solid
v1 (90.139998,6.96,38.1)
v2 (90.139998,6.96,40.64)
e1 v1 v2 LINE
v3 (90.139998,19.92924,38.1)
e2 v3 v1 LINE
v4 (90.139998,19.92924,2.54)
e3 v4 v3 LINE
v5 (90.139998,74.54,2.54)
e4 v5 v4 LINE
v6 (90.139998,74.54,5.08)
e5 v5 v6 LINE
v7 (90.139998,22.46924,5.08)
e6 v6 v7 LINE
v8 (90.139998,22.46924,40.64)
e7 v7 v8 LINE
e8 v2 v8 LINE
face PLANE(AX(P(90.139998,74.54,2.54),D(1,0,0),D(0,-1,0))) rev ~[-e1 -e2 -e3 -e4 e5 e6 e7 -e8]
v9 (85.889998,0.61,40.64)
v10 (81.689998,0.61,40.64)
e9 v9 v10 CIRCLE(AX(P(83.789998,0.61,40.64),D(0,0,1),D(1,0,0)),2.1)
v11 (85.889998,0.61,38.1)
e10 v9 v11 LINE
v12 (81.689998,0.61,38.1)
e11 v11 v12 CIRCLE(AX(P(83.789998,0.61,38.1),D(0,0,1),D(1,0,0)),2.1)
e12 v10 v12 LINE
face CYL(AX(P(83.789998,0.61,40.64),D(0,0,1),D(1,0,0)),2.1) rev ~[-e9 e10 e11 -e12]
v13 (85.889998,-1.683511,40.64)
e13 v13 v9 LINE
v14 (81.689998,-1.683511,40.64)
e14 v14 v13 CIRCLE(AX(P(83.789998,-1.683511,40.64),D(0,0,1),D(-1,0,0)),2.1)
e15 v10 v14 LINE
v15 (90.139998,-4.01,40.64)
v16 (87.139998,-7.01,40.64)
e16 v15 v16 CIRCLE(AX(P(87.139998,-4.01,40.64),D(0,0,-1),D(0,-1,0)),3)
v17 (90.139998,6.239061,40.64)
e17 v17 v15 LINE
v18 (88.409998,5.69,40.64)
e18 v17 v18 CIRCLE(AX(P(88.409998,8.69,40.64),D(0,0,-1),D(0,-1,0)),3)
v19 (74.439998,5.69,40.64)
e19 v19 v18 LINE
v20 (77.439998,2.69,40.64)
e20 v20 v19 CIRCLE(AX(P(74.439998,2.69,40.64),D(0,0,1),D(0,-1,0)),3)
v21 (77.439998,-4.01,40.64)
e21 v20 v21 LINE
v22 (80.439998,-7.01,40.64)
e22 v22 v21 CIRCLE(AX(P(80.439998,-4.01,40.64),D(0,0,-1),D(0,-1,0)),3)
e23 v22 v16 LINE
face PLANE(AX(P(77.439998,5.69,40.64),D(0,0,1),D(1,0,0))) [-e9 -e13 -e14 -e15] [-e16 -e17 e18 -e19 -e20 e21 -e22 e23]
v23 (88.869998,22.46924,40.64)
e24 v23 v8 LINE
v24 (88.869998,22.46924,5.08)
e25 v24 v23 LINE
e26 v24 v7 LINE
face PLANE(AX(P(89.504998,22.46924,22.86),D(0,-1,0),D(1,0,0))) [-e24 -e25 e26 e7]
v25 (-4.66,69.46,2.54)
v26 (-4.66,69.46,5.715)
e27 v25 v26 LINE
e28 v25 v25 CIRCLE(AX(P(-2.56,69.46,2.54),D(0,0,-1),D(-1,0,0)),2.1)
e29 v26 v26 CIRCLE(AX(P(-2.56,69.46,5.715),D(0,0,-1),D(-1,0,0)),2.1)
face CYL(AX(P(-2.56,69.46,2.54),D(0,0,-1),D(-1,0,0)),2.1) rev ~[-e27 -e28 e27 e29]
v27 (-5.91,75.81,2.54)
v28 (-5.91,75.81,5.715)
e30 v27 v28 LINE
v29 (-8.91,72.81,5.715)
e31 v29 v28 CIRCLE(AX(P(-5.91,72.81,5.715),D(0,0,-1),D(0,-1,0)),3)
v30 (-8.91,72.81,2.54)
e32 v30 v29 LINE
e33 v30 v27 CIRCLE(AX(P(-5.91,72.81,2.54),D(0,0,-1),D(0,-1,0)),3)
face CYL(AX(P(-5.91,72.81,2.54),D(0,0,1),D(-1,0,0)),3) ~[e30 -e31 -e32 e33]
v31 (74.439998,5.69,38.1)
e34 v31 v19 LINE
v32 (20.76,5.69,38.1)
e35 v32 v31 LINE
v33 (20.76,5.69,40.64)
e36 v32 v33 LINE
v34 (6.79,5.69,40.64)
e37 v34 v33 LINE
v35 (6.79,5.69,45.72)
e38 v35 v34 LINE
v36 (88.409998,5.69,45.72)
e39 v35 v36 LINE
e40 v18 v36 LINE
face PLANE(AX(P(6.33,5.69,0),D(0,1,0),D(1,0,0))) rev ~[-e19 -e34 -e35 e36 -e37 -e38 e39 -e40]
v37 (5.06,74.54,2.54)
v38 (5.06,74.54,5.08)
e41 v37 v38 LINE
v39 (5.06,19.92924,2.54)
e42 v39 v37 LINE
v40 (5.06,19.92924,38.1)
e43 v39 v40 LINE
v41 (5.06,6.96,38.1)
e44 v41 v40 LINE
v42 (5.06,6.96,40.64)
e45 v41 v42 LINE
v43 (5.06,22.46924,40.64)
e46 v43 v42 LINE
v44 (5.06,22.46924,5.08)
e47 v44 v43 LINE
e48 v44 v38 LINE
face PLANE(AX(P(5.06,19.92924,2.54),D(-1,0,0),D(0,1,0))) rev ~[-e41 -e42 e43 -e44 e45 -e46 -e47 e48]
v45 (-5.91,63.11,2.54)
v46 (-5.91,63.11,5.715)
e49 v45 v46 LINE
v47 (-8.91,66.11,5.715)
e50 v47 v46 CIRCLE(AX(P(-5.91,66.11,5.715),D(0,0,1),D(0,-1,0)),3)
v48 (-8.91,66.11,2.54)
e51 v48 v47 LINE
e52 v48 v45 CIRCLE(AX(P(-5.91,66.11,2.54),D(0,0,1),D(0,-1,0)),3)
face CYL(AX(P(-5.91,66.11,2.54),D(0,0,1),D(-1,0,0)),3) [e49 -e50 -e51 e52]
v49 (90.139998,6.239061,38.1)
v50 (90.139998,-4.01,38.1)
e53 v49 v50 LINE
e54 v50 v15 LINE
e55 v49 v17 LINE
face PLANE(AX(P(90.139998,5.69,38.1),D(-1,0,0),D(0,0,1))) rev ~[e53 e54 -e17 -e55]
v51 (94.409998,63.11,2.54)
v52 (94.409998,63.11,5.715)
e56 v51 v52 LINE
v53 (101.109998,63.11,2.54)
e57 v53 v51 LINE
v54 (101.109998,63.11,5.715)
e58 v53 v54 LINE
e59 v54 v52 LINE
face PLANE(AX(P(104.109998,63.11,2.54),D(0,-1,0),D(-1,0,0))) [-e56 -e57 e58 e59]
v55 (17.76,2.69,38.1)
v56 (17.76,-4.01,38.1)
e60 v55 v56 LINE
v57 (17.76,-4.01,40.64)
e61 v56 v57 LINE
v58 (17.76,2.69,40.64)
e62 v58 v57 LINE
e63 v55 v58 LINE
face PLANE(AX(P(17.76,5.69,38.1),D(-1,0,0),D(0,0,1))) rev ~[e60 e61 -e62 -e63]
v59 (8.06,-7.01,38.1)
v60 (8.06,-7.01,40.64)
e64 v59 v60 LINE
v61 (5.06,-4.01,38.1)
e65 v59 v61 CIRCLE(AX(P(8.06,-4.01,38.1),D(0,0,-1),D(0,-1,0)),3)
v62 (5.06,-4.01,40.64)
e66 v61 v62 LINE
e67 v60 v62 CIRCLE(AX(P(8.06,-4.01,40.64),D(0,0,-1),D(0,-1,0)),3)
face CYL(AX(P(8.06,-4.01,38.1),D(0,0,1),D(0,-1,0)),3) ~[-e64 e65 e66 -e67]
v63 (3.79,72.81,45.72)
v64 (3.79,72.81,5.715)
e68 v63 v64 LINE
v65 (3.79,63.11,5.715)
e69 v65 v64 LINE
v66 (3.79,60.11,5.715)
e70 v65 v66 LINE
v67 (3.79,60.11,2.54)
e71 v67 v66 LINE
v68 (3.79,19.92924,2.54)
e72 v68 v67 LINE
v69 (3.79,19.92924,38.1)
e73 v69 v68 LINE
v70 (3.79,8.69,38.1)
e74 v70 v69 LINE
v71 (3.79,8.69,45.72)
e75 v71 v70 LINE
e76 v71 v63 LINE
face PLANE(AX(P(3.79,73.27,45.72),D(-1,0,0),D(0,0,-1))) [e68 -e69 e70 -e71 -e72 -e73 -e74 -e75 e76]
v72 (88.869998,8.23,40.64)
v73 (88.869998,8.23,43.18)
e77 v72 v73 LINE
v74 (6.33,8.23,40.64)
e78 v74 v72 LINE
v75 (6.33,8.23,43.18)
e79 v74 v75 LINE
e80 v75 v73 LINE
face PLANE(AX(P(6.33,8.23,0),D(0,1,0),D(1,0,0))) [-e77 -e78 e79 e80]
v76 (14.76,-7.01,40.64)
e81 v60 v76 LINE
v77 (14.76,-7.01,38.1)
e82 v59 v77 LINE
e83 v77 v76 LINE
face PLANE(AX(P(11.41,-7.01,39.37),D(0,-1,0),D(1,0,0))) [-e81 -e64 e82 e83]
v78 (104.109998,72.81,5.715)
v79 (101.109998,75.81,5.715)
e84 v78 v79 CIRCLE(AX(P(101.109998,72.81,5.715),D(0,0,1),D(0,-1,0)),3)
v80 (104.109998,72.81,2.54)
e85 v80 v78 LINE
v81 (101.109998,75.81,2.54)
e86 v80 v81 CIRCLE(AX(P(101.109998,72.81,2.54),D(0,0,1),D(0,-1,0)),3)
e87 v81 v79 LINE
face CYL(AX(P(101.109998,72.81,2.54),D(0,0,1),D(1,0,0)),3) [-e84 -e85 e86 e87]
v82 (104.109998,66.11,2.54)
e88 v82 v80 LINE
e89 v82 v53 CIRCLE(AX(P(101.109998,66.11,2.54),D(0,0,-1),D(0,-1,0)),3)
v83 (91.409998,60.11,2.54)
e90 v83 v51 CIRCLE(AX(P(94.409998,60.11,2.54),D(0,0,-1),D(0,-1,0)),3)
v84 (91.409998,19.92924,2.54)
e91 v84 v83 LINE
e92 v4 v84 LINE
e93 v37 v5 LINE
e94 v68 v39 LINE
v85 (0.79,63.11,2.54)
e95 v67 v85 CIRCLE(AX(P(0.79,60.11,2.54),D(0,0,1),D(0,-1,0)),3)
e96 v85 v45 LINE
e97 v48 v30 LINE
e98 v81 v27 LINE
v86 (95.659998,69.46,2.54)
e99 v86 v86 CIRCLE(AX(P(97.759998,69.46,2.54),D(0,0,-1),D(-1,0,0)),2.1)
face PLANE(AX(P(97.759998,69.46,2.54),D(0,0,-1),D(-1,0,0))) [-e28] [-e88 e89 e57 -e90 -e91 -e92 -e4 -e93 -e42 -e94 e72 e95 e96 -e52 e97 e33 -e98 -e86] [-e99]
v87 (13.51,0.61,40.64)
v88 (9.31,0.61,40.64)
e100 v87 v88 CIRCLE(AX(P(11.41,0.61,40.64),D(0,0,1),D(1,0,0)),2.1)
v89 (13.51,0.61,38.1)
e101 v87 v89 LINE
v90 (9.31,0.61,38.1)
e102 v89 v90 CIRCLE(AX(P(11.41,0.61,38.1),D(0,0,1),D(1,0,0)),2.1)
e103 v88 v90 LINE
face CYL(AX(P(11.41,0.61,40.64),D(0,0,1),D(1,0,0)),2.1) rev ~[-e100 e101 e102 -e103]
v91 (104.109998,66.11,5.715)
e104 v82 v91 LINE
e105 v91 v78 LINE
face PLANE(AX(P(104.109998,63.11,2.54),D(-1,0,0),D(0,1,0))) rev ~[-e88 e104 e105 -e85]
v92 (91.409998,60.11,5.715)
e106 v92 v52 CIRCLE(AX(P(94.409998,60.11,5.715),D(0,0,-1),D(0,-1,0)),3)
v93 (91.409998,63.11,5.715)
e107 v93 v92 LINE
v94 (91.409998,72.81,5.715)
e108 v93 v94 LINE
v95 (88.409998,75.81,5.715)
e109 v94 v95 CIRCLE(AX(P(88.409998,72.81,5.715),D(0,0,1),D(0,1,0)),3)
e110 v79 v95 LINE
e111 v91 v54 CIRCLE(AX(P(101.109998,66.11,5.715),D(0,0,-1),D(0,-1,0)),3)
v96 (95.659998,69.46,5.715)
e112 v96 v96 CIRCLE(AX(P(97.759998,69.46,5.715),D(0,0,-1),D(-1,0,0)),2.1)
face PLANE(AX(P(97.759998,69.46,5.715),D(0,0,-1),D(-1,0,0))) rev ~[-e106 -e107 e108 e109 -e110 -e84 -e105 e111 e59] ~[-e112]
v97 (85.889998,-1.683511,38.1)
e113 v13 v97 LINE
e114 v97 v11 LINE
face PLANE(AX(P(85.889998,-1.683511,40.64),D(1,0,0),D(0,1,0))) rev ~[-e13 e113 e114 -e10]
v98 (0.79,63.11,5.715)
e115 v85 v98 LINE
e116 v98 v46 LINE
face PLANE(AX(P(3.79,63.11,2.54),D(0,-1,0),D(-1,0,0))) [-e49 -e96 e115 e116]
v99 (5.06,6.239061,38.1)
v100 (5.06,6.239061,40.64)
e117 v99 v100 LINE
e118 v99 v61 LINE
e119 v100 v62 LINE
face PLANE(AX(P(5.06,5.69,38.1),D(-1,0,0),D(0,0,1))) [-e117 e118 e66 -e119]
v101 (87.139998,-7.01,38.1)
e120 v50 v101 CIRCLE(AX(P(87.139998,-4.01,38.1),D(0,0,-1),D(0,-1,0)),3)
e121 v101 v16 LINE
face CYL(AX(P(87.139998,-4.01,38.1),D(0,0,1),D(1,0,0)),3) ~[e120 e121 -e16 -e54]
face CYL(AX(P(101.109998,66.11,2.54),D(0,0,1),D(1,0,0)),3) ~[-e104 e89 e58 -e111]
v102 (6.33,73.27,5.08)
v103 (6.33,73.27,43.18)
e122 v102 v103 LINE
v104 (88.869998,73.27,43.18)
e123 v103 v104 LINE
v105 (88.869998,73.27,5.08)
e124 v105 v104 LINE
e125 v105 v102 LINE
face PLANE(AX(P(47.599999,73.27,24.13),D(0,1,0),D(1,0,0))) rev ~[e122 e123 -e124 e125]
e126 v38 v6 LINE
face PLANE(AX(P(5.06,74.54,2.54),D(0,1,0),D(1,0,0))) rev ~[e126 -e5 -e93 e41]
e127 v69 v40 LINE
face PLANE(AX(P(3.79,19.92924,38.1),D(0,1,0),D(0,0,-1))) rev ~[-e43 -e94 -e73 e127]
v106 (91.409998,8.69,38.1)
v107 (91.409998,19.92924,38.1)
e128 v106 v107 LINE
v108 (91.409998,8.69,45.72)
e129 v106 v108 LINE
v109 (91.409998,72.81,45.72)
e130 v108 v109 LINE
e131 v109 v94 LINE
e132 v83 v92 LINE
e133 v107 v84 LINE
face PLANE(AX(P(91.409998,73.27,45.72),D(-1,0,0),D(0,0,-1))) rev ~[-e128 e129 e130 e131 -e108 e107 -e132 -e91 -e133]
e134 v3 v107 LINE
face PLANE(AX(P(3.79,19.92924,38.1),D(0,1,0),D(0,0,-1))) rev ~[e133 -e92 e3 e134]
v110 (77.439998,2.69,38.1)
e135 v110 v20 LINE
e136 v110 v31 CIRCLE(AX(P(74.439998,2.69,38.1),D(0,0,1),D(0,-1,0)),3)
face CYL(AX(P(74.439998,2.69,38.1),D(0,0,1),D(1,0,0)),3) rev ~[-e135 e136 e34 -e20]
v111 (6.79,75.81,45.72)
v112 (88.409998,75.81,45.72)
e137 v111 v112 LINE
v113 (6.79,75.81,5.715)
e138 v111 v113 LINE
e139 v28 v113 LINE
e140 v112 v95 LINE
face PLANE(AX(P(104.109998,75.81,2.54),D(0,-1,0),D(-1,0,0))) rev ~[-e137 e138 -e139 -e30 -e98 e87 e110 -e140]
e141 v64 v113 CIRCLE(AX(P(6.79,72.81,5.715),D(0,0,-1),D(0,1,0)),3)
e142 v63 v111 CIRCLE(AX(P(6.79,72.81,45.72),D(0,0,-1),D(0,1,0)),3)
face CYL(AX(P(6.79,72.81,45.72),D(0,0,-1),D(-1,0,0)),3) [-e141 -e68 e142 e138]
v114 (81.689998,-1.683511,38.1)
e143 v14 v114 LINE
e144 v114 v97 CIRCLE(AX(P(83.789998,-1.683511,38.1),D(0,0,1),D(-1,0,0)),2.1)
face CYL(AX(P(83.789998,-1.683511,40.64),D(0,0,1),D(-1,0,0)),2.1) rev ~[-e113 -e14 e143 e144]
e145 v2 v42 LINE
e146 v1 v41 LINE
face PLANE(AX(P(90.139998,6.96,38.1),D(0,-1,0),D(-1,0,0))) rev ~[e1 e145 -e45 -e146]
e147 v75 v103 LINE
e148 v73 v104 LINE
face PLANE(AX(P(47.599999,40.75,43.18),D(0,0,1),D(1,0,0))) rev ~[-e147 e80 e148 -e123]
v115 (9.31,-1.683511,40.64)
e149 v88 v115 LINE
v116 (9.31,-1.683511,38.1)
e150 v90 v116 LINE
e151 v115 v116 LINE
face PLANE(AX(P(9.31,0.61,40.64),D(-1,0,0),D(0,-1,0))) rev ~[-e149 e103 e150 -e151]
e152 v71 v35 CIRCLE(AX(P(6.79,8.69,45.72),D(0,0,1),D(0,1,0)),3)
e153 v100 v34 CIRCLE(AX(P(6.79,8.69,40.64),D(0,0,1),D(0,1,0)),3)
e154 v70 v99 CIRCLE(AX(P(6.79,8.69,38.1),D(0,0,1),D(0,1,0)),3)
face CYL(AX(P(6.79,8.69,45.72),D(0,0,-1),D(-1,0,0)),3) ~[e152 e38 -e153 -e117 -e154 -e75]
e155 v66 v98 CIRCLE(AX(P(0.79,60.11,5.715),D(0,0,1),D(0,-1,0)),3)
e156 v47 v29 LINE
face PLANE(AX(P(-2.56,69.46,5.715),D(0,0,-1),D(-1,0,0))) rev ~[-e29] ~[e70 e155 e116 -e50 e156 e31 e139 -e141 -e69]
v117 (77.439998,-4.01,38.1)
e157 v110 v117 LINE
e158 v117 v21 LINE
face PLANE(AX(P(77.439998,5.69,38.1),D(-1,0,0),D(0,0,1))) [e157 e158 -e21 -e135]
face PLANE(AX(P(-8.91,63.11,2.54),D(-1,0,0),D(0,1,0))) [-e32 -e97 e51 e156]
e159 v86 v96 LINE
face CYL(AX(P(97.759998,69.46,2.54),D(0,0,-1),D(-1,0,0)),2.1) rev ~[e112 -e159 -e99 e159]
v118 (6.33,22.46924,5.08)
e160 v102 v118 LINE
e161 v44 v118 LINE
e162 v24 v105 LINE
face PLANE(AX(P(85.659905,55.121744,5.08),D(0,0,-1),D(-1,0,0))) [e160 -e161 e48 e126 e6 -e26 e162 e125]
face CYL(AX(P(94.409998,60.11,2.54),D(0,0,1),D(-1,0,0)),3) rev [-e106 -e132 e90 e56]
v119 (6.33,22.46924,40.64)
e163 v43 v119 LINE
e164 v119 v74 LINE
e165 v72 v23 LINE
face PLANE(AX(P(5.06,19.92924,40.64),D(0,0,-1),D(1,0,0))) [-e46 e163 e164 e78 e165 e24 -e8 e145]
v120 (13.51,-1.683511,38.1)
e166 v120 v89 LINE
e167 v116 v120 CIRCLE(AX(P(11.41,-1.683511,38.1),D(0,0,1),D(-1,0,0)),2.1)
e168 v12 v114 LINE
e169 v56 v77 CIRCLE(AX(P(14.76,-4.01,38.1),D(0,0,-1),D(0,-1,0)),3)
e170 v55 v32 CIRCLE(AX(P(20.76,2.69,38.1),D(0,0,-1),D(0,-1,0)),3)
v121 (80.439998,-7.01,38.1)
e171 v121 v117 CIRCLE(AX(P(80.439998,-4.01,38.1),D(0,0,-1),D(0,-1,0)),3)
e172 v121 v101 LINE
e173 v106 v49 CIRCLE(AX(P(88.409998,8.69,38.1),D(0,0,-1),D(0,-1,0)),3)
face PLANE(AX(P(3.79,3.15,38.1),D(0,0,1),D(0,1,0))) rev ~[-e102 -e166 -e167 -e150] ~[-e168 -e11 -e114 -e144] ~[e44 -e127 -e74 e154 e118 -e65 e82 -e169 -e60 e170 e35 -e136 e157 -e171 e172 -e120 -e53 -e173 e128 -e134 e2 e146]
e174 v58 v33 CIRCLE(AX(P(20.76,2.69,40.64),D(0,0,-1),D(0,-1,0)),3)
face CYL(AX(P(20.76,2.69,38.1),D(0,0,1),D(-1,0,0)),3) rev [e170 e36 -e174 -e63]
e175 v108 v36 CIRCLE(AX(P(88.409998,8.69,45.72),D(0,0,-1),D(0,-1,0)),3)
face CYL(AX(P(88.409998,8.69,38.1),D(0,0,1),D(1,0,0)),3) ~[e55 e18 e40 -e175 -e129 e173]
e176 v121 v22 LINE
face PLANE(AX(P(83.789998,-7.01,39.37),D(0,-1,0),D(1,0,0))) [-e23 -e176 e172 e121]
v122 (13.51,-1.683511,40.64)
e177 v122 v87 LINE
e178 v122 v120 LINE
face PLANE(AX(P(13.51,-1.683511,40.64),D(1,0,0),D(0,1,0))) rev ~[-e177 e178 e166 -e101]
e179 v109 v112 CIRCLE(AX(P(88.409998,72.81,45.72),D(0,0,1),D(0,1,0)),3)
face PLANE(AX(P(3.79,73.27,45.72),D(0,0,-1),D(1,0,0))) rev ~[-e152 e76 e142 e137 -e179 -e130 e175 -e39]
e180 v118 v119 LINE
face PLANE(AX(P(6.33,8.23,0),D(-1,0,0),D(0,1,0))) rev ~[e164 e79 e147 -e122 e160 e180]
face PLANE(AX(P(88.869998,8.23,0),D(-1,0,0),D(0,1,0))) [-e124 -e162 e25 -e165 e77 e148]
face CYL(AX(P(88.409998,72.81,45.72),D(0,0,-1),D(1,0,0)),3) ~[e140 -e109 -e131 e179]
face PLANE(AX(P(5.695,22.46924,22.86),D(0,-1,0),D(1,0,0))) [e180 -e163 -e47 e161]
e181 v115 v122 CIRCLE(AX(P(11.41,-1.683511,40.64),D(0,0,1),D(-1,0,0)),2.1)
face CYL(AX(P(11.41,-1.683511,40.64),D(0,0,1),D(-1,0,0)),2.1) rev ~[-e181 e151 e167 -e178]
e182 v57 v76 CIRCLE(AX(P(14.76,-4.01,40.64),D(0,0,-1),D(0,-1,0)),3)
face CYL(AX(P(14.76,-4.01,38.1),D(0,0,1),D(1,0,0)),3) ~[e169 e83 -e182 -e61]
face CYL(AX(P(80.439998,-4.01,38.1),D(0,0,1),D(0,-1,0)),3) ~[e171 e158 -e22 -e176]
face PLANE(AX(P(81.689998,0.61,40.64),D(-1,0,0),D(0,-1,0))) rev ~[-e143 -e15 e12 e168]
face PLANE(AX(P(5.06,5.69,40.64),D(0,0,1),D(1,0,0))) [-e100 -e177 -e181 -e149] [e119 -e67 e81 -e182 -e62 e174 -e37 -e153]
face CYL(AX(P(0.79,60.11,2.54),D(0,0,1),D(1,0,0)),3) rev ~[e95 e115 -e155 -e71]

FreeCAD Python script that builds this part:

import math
import FreeCAD as App
import Part
import Sketcher
from FreeCAD import Vector
Q = App.Units.Quantity


def edges_at(feature, points):
    """Names of the edges that pass closest to the given points."""
    edges = feature.Shape.Edges
    near = lambda p: min(range(len(edges)), key=lambda i: edges[i].distToShape(Part.Vertex(*p))[0])
    return sorted({f"Edge{near(p) + 1}" for p in points})


def faces_at(feature, points):
    """Names of the faces that lie closest to the given points."""
    faces = feature.Shape.Faces
    near = lambda p: min(range(len(faces)), key=lambda i: faces[i].distToShape(Part.Vertex(*p))[0])
    return sorted({f"Face{near(p) + 1}" for p in points})

doc = App.newDocument("Part")
body = doc.addObject("PartDesign::Body", "Body")

# Sketch on XY plane
sketch1 = body.newObject("Sketcher::SketchObject", "Sketch")
sketch1.AttachmentSupport = (doc.getObject("XY_Plane"), [""])
sketch1.MapMode = "FlatFace"
sketch1.addGeometry(Part.LineSegment(Vector(6.33, 73.27, 0), Vector(6.33, 8.23, 0)), False)
sketch1.addGeometry(Part.LineSegment(Vector(6.33, 8.23, 0), Vector(88.869998, 8.23, 0)), False)
sketch1.addGeometry(Part.LineSegment(Vector(88.869998, 8.23, 0), Vector(88.869998, 73.27, 0)), False)
sketch1.addGeometry(Part.LineSegment(Vector(88.869998, 73.27, 0), Vector(6.33, 73.27, 0)), False)
sketch1.addConstraint(Sketcher.Constraint("Coincident", 0, 2, 1, 1))
sketch1.addConstraint(Sketcher.Constraint("Coincident", 1, 2, 2, 1))
sketch1.addConstraint(Sketcher.Constraint("Coincident", 2, 2, 3, 1))
sketch1.addConstraint(Sketcher.Constraint("Coincident", 3, 2, 0, 1))
sketch1.addConstraint(Sketcher.Constraint("Vertical", 0))
sketch1.addConstraint(Sketcher.Constraint("Horizontal", 1))
sketch1.addConstraint(Sketcher.Constraint("Vertical", 2))
sketch1.addConstraint(Sketcher.Constraint("Horizontal", 3))
sketch1.addConstraint(Sketcher.Constraint("DistanceX", 1, 1, 1, 2, 82.539999))
sketch1.addConstraint(Sketcher.Constraint("DistanceY", 0, 2, 0, 1, 65.04))
sketch1.addConstraint(Sketcher.Constraint("DistanceX", -1, 1, 0, 2, 6.33))
sketch1.addConstraint(Sketcher.Constraint("DistanceY", -1, 1, 0, 2, 8.23))
pad1 = body.newObject("PartDesign::Pad", "Pad")
pad1.Profile = sketch1
pad1.Length = Q("1.7 in")
doc.recompute()

thickness = body.newObject("PartDesign::Thickness", "Thickness")
thickness.Base = (pad1, faces_at(pad1, [(47.6, 73.27, 21.59), (47.6, 40.75, 0)]))
thickness.Value = Q("0.1 in")
thickness.Reversed = False
thickness.Join = "Intersection"

# Sketch on YZ plane
sketch2 = body.newObject("Sketcher::SketchObject", "Sketch001")
sketch2.AttachmentSupport = (doc.getObject("YZ_Plane"), [""])
sketch2.MapMode = "FlatFace"
sketch2.AttachmentOffset = App.Placement(Vector(0, 0, 3.79), App.Rotation())
sketch2.addGeometry(Part.LineSegment(Vector(73.27, 2.54, 0), Vector(73.27, 0, 0)), False)
sketch2.addGeometry(Part.LineSegment(Vector(73.27, 0, 0), Vector(3.15, 0, 0)), False)
sketch2.addGeometry(Part.LineSegment(Vector(3.15, 0, 0), Vector(3.15, 38.1, 0)), False)
sketch2.addGeometry(Part.LineSegment(Vector(3.15, 38.1, 0), Vector(19.92924, 38.1, 0)), False)
sketch2.addGeometry(Part.LineSegment(Vector(19.92924, 38.1, 0), Vector(19.92924, 2.54, 0)), False)
sketch2.addGeometry(Part.LineSegment(Vector(19.92924, 2.54, 0), Vector(73.27, 2.54, 0)), False)
sketch2.addConstraint(Sketcher.Constraint("Coincident", 0, 2, 1, 1))
sketch2.addConstraint(Sketcher.Constraint("Coincident", 1, 2, 2, 1))
sketch2.addConstraint(Sketcher.Constraint("Coincident", 2, 2, 3, 1))
sketch2.addConstraint(Sketcher.Constraint("Coincident", 3, 2, 4, 1))
sketch2.addConstraint(Sketcher.Constraint("Coincident", 4, 2, 5, 1))
sketch2.addConstraint(Sketcher.Constraint("Coincident", 5, 2, 0, 1))
sketch2.addConstraint(Sketcher.Constraint("Vertical", 0))
sketch2.addConstraint(Sketcher.Constraint("Horizontal", 1))
sketch2.addConstraint(Sketcher.Constraint("Vertical", 2))
sketch2.addConstraint(Sketcher.Constraint("Horizontal", 3))
sketch2.addConstraint(Sketcher.Constraint("Vertical", 4))
sketch2.addConstraint(Sketcher.Constraint("Horizontal", 5))
sketch2.addConstraint(Sketcher.Constraint("PointOnObject", 0, 2, -1))
sketch2.addConstraint(Sketcher.Constraint("DistanceY", 0, 2, 0, 1, Q("0.1 in")))
sketch2.addConstraint(Sketcher.Constraint("DistanceY", 2, 1, 2, 2, Q("1.5 in")))
sketch2.addConstraint(Sketcher.Constraint("DistanceX", 3, 1, 3, 2, Q("0.6606 in")))
sketch2.addConstraint(Sketcher.Constraint("DistanceX", 1, 2, 1, 1, 70.12))
sketch2.addConstraint(Sketcher.Constraint("DistanceX", -1, 1, 0, 2, 73.27))
pocket1 = body.newObject("PartDesign::Pocket", "Pocket")
pocket1.Profile = sketch2
pocket1.Type = "ThroughAll"
pocket1.Reversed = True

# Sketch on XZ plane
sketch3 = body.newObject("Sketcher::SketchObject", "Sketch002")
sketch3.AttachmentSupport = (doc.getObject("XZ_Plane"), [""])
sketch3.MapMode = "FlatFace"
sketch3.AttachmentOffset = App.Placement(Vector(0, 0, -73.27), App.Rotation())
sketch3.addGeometry(Part.LineSegment(Vector(3.79, 2.54, 0), Vector(3.79, 45.72, 0)), False)
sketch3.addGeometry(Part.LineSegment(Vector(3.79, 45.72, 0), Vector(91.409998, 45.72, 0)), False)
sketch3.addGeometry(Part.LineSegment(Vector(91.409998, 45.72, 0), Vector(91.409998, 2.54, 0)), False)
sketch3.addGeometry(Part.LineSegment(Vector(91.409998, 2.54, 0), Vector(3.79, 2.54, 0)), False)
sketch3.addConstraint(Sketcher.Constraint("Coincident", 0, 2, 1, 1))
sketch3.addConstraint(Sketcher.Constraint("Coincident", 1, 2, 2, 1))
sketch3.addConstraint(Sketcher.Constraint("Coincident", 2, 2, 3, 1))
sketch3.addConstraint(Sketcher.Constraint("Coincident", 3, 2, 0, 1))
sketch3.addConstraint(Sketcher.Constraint("Vertical", 0))
sketch3.addConstraint(Sketcher.Constraint("Horizontal", 1))
sketch3.addConstraint(Sketcher.Constraint("Vertical", 2))
sketch3.addConstraint(Sketcher.Constraint("Horizontal", 3))
sketch3.addConstraint(Sketcher.Constraint("DistanceY", 0, 1, 0, 2, Q("1.7 in")))
sketch3.addConstraint(Sketcher.Constraint("DistanceY", -1, 1, 0, 2, Q("1.8 in")))
sketch3.addConstraint(Sketcher.Constraint("DistanceX", 1, 1, 1, 2, 87.619999))
sketch3.addConstraint(Sketcher.Constraint("DistanceX", -1, 1, 0, 2, 3.79))
pad2 = body.newObject("PartDesign::Pad", "Pad001")
pad2.Profile = sketch3
pad2.Length = Q("0.1 in")
pad2.Reversed = True

# Sketch on XY plane
sketch4 = body.newObject("Sketcher::SketchObject", "Sketch003")
sketch4.AttachmentSupport = (doc.getObject("XY_Plane"), [""])
sketch4.MapMode = "FlatFace"
sketch4.AttachmentOffset = App.Placement(Vector(0, 0, 0.1 * 25.4), App.Rotation())
sketch4.addGeometry(Part.LineSegment(Vector(90.139998, 74.54, 0), Vector(90.139998, 19.92924, 0)), False)
sketch4.addGeometry(Part.LineSegment(Vector(90.139998, 19.92924, 0), Vector(88.869998, 19.92924, 0)), False)
sketch4.addGeometry(Part.LineSegment(Vector(88.869998, 19.92924, 0), Vector(88.869998, 73.27, 0)), False)
sketch4.addGeometry(Part.LineSegment(Vector(88.869998, 73.27, 0), Vector(6.33, 73.27, 0)), False)
sketch4.addGeometry(Part.LineSegment(Vector(6.33, 73.27, 0), Vector(6.33, 19.92924, 0)), False)
sketch4.addGeometry(Part.LineSegment(Vector(6.33, 19.92924, 0), Vector(5.06, 19.92924, 0)), False)
sketch4.addGeometry(Part.LineSegment(Vector(5.06, 19.92924, 0), Vector(5.06, 74.54, 0)), False)
sketch4.addGeometry(Part.LineSegment(Vector(5.06, 74.54, 0), Vector(90.139998, 74.54, 0)), False)
sketch4.addConstraint(Sketcher.Constraint("Coincident", 0, 2, 1, 1))
sketch4.addConstraint(Sketcher.Constraint("Coincident", 1, 2, 2, 1))
sketch4.addConstraint(Sketcher.Constraint("Coincident", 2, 2, 3, 1))
sketch4.addConstraint(Sketcher.Constraint("Coincident", 3, 2, 4, 1))
sketch4.addConstraint(Sketcher.Constraint("Coincident", 4, 2, 5, 1))
sketch4.addConstraint(Sketcher.Constraint("Coincident", 5, 2, 6, 1))
sketch4.addConstraint(Sketcher.Constraint("Coincident", 6, 2, 7, 1))
sketch4.addConstraint(Sketcher.Constraint("Coincident", 7, 2, 0, 1))
sketch4.addConstraint(Sketcher.Constraint("Vertical", 0))
sketch4.addConstraint(Sketcher.Constraint("Horizontal", 1))
sketch4.addConstraint(Sketcher.Constraint("Vertical", 2))
sketch4.addConstraint(Sketcher.Constraint("Horizontal", 3))
sketch4.addConstraint(Sketcher.Constraint("Vertical", 4))
sketch4.addConstraint(Sketcher.Constraint("Horizontal", 5))
sketch4.addConstraint(Sketcher.Constraint("Vertical", 6))
sketch4.addConstraint(Sketcher.Constraint("Horizontal", 7))
sketch4.addConstraint(Sketcher.Constraint("Horizontal", 1, 2, 4, 2))
sketch4.addConstraint(Sketcher.Constraint("Equal", 1, 5))
sketch4.addConstraint(Sketcher.Constraint("DistanceX", 1, 2, 1, 1, Q("0.05 in")))
sketch4.addConstraint(Sketcher.Constraint("DistanceY", 3, 2, 6, 2, Q("0.05 in")))
sketch4.addConstraint(Sketcher.Constraint("DistanceX", 3, 2, 3, 1, 82.539999))
sketch4.addConstraint(Sketcher.Constraint("DistanceY", 0, 2, 0, 1, 54.61076))
sketch4.addConstraint(Sketcher.Constraint("DistanceX", -1, 1, 0, 2, 90.139998))
sketch4.addConstraint(Sketcher.Constraint("DistanceY", -1, 1, 2, 2, 73.27))
pocket2 = body.newObject("PartDesign::Pocket", "Pocket001")
pocket2.Profile = sketch4
pocket2.Length = Q("0.1 in")
pocket2.Reversed = True

# Sketch on XY plane
sketch5 = body.newObject("Sketcher::SketchObject", "Sketch004")
sketch5.AttachmentSupport = (doc.getObject("XY_Plane"), [""])
sketch5.MapMode = "FlatFace"
sketch5.AttachmentOffset = App.Placement(Vector(0, 0, 1.5 * 25.4), App.Rotation())
sketch5.addGeometry(Part.LineSegment(Vector(90.139998, 19.92924, 0), Vector(90.139998, 6.96, 0)), False)
sketch5.addGeometry(Part.LineSegment(Vector(90.139998, 6.96, 0), Vector(5.06, 6.96, 0)), False)
sketch5.addGeometry(Part.LineSegment(Vector(5.06, 6.96, 0), Vector(5.06, 19.92924, 0)), False)
sketch5.addGeometry(Part.LineSegment(Vector(5.06, 19.92924, 0), Vector(6.33, 19.92924, 0)), False)
sketch5.addGeometry(Part.LineSegment(Vector(6.33, 19.92924, 0), Vector(6.33, 8.23, 0)), False)
sketch5.addGeometry(Part.LineSegment(Vector(6.33, 8.23, 0), Vector(88.869998, 8.23, 0)), False)
sketch5.addGeometry(Part.LineSegment(Vector(88.869998, 8.23, 0), Vector(88.869998, 19.92924, 0)), False)
sketch5.addGeometry(Part.LineSegment(Vector(88.869998, 19.92924, 0), Vector(90.139998, 19.92924, 0)), False)
sketch5.addConstraint(Sketcher.Constraint("Coincident", 0, 2, 1, 1))
sketch5.addConstraint(Sketcher.Constraint("Coincident", 1, 2, 2, 1))
sketch5.addConstraint(Sketcher.Constraint("Coincident", 2, 2, 3, 1))
sketch5.addConstraint(Sketcher.Constraint("Coincident", 3, 2, 4, 1))
sketch5.addConstraint(Sketcher.Constraint("Coincident", 4, 2, 5, 1))
sketch5.addConstraint(Sketcher.Constraint("Coincident", 5, 2, 6, 1))
sketch5.addConstraint(Sketcher.Constraint("Coincident", 6, 2, 7, 1))
sketch5.addConstraint(Sketcher.Constraint("Coincident", 7, 2, 0, 1))
sketch5.addConstraint(Sketcher.Constraint("Vertical", 0))
sketch5.addConstraint(Sketcher.Constraint("Horizontal", 1))
sketch5.addConstraint(Sketcher.Constraint("Vertical", 2))
sketch5.addConstraint(Sketcher.Constraint("Horizontal", 3))
sketch5.addConstraint(Sketcher.Constraint("Vertical", 4))
sketch5.addConstraint(Sketcher.Constraint("Horizontal", 5))
sketch5.addConstraint(Sketcher.Constraint("Vertical", 6))
sketch5.addConstraint(Sketcher.Constraint("Horizontal", 7))
sketch5.addConstraint(Sketcher.Constraint("Horizontal", 3, 2, 6, 2))
sketch5.addConstraint(Sketcher.Constraint("Equal", 3, 7))
sketch5.addConstraint(Sketcher.Constraint("DistanceX", 3, 1, 3, 2, Q("0.05 in")))
sketch5.addConstraint(Sketcher.Constraint("DistanceY", 1, 2, 4, 2, Q("0.05 in")))
sketch5.addConstraint(Sketcher.Constraint("DistanceY", 0, 2, 0, 1, Q("0.5106 in")))
sketch5.addConstraint(Sketcher.Constraint("DistanceX", 1, 2, 1, 1, 85.079999))
sketch5.addConstraint(Sketcher.Constraint("DistanceX", -1, 1, 0, 2, 90.139998))
sketch5.addConstraint(Sketcher.Constraint("DistanceY", -1, 1, 0, 2, 6.96))
pocket3 = body.newObject("PartDesign::Pocket", "Pocket002")
pocket3.Profile = sketch5
pocket3.Length = Q("0.1 in")
pocket3.Reversed = True

# Sketch on XZ plane
sketch6 = body.newObject("Sketcher::SketchObject", "Sketch005")
sketch6.AttachmentSupport = (doc.getObject("XZ_Plane"), [""])
sketch6.MapMode = "FlatFace"
sketch6.AttachmentOffset = App.Placement(Vector(0, 0, -19.92924), App.Rotation())
sketch6.addGeometry(Part.LineSegment(Vector(5.06, 40.64, 0), Vector(5.06, 5.08, 0)), False)
sketch6.addGeometry(Part.LineSegment(Vector(5.06, 5.08, 0), Vector(6.33, 5.08, 0)), False)
sketch6.addGeometry(Part.LineSegment(Vector(6.33, 5.08, 0), Vector(6.33, 40.64, 0)), False)
sketch6.addGeometry(Part.LineSegment(Vector(6.33, 40.64, 0), Vector(5.06, 40.64, 0)), False)
sketch6.addGeometry(Part.LineSegment(Vector(88.869998, 40.64, 0), Vector(88.869998, 5.08, 0)), False)
sketch6.addGeometry(Part.LineSegment(Vector(88.869998, 5.08, 0), Vector(90.139998, 5.08, 0)), False)
sketch6.addGeometry(Part.LineSegment(Vector(90.139998, 5.08, 0), Vector(90.139998, 40.64, 0)), False)
sketch6.addGeometry(Part.LineSegment(Vector(90.139998, 40.64, 0), Vector(88.869998, 40.64, 0)), False)
sketch6.addConstraint(Sketcher.Constraint("Coincident", 0, 2, 1, 1))
sketch6.addConstraint(Sketcher.Constraint("Coincident", 1, 2, 2, 1))
sketch6.addConstraint(Sketcher.Constraint("Coincident", 2, 2, 3, 1))
sketch6.addConstraint(Sketcher.Constraint("Coincident", 3, 2, 0, 1))
sketch6.addConstraint(Sketcher.Constraint("Coincident", 4, 2, 5, 1))
sketch6.addConstraint(Sketcher.Constraint("Coincident", 5, 2, 6, 1))
sketch6.addConstraint(Sketcher.Constraint("Coincident", 6, 2, 7, 1))
sketch6.addConstraint(Sketcher.Constraint("Coincident", 7, 2, 4, 1))
sketch6.addConstraint(Sketcher.Constraint("Vertical", 0))
sketch6.addConstraint(Sketcher.Constraint("Horizontal", 1))
sketch6.addConstraint(Sketcher.Constraint("Vertical", 2))
sketch6.addConstraint(Sketcher.Constraint("Horizontal", 3))
sketch6.addConstraint(Sketcher.Constraint("Vertical", 4))
sketch6.addConstraint(Sketcher.Constraint("Horizontal", 5))
sketch6.addConstraint(Sketcher.Constraint("Vertical", 6))
sketch6.addConstraint(Sketcher.Constraint("Horizontal", 7))
sketch6.addConstraint(Sketcher.Constraint("Horizontal", 1, 2, 4, 2))
sketch6.addConstraint(Sketcher.Constraint("Horizontal", 3, 2, 6, 2))
sketch6.addConstraint(Sketcher.Constraint("Equal", 3, 5))
sketch6.addConstraint(Sketcher.Constraint("DistanceY", 0, 2, 0, 1, Q("1.4 in")))
sketch6.addConstraint(Sketcher.Constraint("DistanceX", 1, 1, 1, 2, Q("0.05 in")))
sketch6.addConstraint(Sketcher.Constraint("DistanceY", -1, 1, 0, 2, Q("0.2 in")))
sketch6.addConstraint(Sketcher.Constraint("DistanceX", -1, 1, 0, 2, 5.06))
sketch6.addConstraint(Sketcher.Constraint("DistanceX", -1, 1, 4, 2, 88.869998))
pocket4 = body.newObject("PartDesign::Pocket", "Pocket003")
pocket4.Profile = sketch6
pocket4.Length = Q("0.1 in")

# Sketch on XZ plane
sketch7 = body.newObject("Sketcher::SketchObject", "Sketch006")
sketch7.AttachmentSupport = (doc.getObject("XZ_Plane"), [""])
sketch7.MapMode = "FlatFace"
sketch7.AttachmentOffset = App.Placement(Vector(0, 0, -5.69), App.Rotation())
sketch7.addGeometry(Part.LineSegment(Vector(5.06, 40.64, 0), Vector(5.06, 38.1, 0)), False)
sketch7.addGeometry(Part.LineSegment(Vector(5.06, 38.1, 0), Vector(17.76, 38.1, 0)), False)
sketch7.addGeometry(Part.LineSegment(Vector(17.76, 38.1, 0), Vector(17.76, 40.64, 0)), False)
sketch7.addGeometry(Part.LineSegment(Vector(17.76, 40.64, 0), Vector(5.06, 40.64, 0)), False)
sketch7.addGeometry(Part.LineSegment(Vector(77.439998, 40.64, 0), Vector(77.439998, 38.1, 0)), False)
sketch7.addGeometry(Part.LineSegment(Vector(77.439998, 38.1, 0), Vector(90.139998, 38.1, 0)), False)
sketch7.addGeometry(Part.LineSegment(Vector(90.139998, 38.1, 0), Vector(90.139998, 40.64, 0)), False)
sketch7.addGeometry(Part.LineSegment(Vector(90.139998, 40.64, 0), Vector(77.439998, 40.64, 0)), False)
sketch7.addConstraint(Sketcher.Constraint("Coincident", 0, 2, 1, 1))
sketch7.addConstraint(Sketcher.Constraint("Coincident", 1, 2, 2, 1))
sketch7.addConstraint(Sketcher.Constraint("Coincident", 2, 2, 3, 1))
sketch7.addConstraint(Sketcher.Constraint("Coincident", 3, 2, 0, 1))
sketch7.addConstraint(Sketcher.Constraint("Coincident", 4, 2, 5, 1))
sketch7.addConstraint(Sketcher.Constraint("Coincident", 5, 2, 6, 1))
sketch7.addConstraint(Sketcher.Constraint("Coincident", 6, 2, 7, 1))
sketch7.addConstraint(Sketcher.Constraint("Coincident", 7, 2, 4, 1))
sketch7.addConstraint(Sketcher.Constraint("Vertical", 0))
sketch7.addConstraint(Sketcher.Constraint("Horizontal", 1))
sketch7.addConstraint(Sketcher.Constraint("Vertical", 2))
sketch7.addConstraint(Sketcher.Constraint("Horizontal", 3))
sketch7.addConstraint(Sketcher.Constraint("Vertical", 4))
sketch7.addConstraint(Sketcher.Constraint("Horizontal", 5))
sketch7.addConstraint(Sketcher.Constraint("Vertical", 6))
sketch7.addConstraint(Sketcher.Constraint("Horizontal", 7))
sketch7.addConstraint(Sketcher.Constraint("Horizontal", 1, 2, 4, 2))
sketch7.addConstraint(Sketcher.Constraint("Horizontal", 3, 2, 6, 2))
sketch7.addConstraint(Sketcher.Constraint("Equal", 3, 5))
sketch7.addConstraint(Sketcher.Constraint("DistanceX", 1, 1, 1, 2, Q("0.5 in")))
sketch7.addConstraint(Sketcher.Constraint("DistanceY", 0, 2, 0, 1, Q("0.1 in")))
sketch7.addConstraint(Sketcher.Constraint("DistanceY", -1, 1, 0, 2, Q("1.5 in")))
sketch7.addConstraint(Sketcher.Constraint("DistanceX", -1, 1, 0, 2, 5.06))
sketch7.addConstraint(Sketcher.Constraint("DistanceX", -1, 1, 4, 2, 77.439998))
pad3 = body.newObject("PartDesign::Pad", "Pad002")
pad3.Profile = sketch7
pad3.Length = Q("0.5 in")

# Sketch on XY plane
sketch8 = body.newObject("Sketcher::SketchObject", "Sketch007")
sketch8.AttachmentSupport = (doc.getObject("XY_Plane"), [""])
sketch8.MapMode = "FlatFace"
sketch8.AttachmentOffset = App.Placement(Vector(0, 0, 1.6 * 25.4), App.Rotation())
sketch8.addGeometry(Part.LineSegment(Vector(9.31, 0.61, 0), Vector(9.31, -1.683511, 0)), False)
sketch8.addGeometry(Part.ArcOfCircle(Part.Circle(Vector(11.41, -1.683511, 0), Vector(0, 0, 1), 2.1), math.radians(180), math.radians(360)), False)
sketch8.addGeometry(Part.LineSegment(Vector(13.51, -1.683511, 0), Vector(13.51, 0.61, 0)), False)
sketch8.addGeometry(Part.ArcOfCircle(Part.Circle(Vector(11.41, 0.61, 0), Vector(0, 0, 1), 2.1), math.radians(0), math.radians(180)), False)
sketch8.addGeometry(Part.LineSegment(Vector(81.689998, 0.61, 0), Vector(81.689998, -1.683511, 0)), False)
sketch8.addGeometry(Part.ArcOfCircle(Part.Circle(Vector(83.789998, -1.683511, 0), Vector(0, 0, 1), 2.1), math.radians(180), math.radians(360)), False)
sketch8.addGeometry(Part.LineSegment(Vector(85.889998, -1.683511, 0), Vector(85.889998, 0.61, 0)), False)
sketch8.addGeometry(Part.ArcOfCircle(Part.Circle(Vector(83.789998, 0.61, 0), Vector(0, 0, 1), 2.1), math.radians(0), math.radians(180)), False)
sketch8.addConstraint(Sketcher.Constraint("Tangent", 0, 2, 1, 1))
sketch8.addConstraint(Sketcher.Constraint("Tangent", 1, 2, 2, 1))
sketch8.addConstraint(Sketcher.Constraint("Tangent", 2, 2, 3, 1))
sketch8.addConstraint(Sketcher.Constraint("Tangent", 3, 2, 0, 1))
sketch8.addConstraint(Sketcher.Constraint("Tangent", 4, 2, 5, 1))
sketch8.addConstraint(Sketcher.Constraint("Tangent", 5, 2, 6, 1))
sketch8.addConstraint(Sketcher.Constraint("Tangent", 6, 2, 7, 1))
sketch8.addConstraint(Sketcher.Constraint("Tangent", 7, 2, 4, 1))
sketch8.addConstraint(Sketcher.Constraint("Vertical", 0))
sketch8.addConstraint(Sketcher.Constraint("Vertical", 2))
sketch8.addConstraint(Sketcher.Constraint("Vertical", 4))
sketch8.addConstraint(Sketcher.Constraint("Vertical", 6))
sketch8.addConstraint(Sketcher.Constraint("Equal", 3, 5))
sketch8.addConstraint(Sketcher.Constraint("Horizontal", 1, 3, 5, 3))
sketch8.addConstraint(Sketcher.Constraint("Horizontal", 3, 3, 7, 3))
sketch8.addConstraint(Sketcher.Constraint("Radius", 1, 2.1))
sketch8.addConstraint(Sketcher.Constraint("DistanceY", 0, 2, 0, 1, 2.293511))
sketch8.addConstraint(Sketcher.Constraint("DistanceX", -1, 1, 1, 3, 11.41))
sketch8.addConstraint(Sketcher.Constraint("DistanceY", -1, 1, 3, 3, 0.61))
sketch8.addConstraint(Sketcher.Constraint("DistanceX", -1, 1, 5, 3, 83.789998))
pocket5 = body.newObject("PartDesign::Pocket", "Pocket004")
pocket5.Profile = sketch8
pocket5.Type = "ThroughAll"

# Sketch on XY plane
sketch9 = body.newObject("Sketcher::SketchObject", "Sketch008")
sketch9.AttachmentSupport = (doc.getObject("XY_Plane"), [""])
sketch9.MapMode = "FlatFace"
sketch9.AttachmentOffset = App.Placement(Vector(0, 0, 0.1 * 25.4), App.Rotation())
sketch9.addGeometry(Part.LineSegment(Vector(104.109998, 75.81, 0), Vector(104.109998, 63.11, 0)), False)
sketch9.addGeometry(Part.LineSegment(Vector(104.109998, 63.11, 0), Vector(91.409998, 63.11, 0)), False)
sketch9.addGeometry(Part.LineSegment(Vector(91.409998, 63.11, 0), Vector(91.409998, 75.81, 0)), False)
sketch9.addGeometry(Part.LineSegment(Vector(91.409998, 75.81, 0), Vector(104.109998, 75.81, 0)), False)
sketch9.addGeometry(Part.Circle(Vector(97.759998, 69.46, 0), Vector(0, 0, 1), 2.1), False)
sketch9.addGeometry(Part.LineSegment(Vector(3.79, 75.81, 0), Vector(3.79, 63.11, 0)), False)
sketch9.addGeometry(Part.LineSegment(Vector(3.79, 63.11, 0), Vector(-8.91, 63.11, 0)), False)
sketch9.addGeometry(Part.LineSegment(Vector(-8.91, 63.11, 0), Vector(-8.91, 75.81, 0)), False)
sketch9.addGeometry(Part.LineSegment(Vector(-8.91, 75.81, 0), Vector(3.79, 75.81, 0)), False)
sketch9.addGeometry(Part.Circle(Vector(-2.56, 69.46, 0), Vector(0, 0, 1), 2.1), False)
sketch9.addConstraint(Sketcher.Constraint("Coincident", 0, 2, 1, 1))
sketch9.addConstraint(Sketcher.Constraint("Coincident", 1, 2, 2, 1))
sketch9.addConstraint(Sketcher.Constraint("Coincident", 2, 2, 3, 1))
sketch9.addConstraint(Sketcher.Constraint("Coincident", 3, 2, 0, 1))
sketch9.addConstraint(Sketcher.Constraint("Coincident", 5, 2, 6, 1))
sketch9.addConstraint(Sketcher.Constraint("Coincident", 6, 2, 7, 1))
sketch9.addConstraint(Sketcher.Constraint("Coincident", 7, 2, 8, 1))
sketch9.addConstraint(Sketcher.Constraint("Coincident", 8, 2, 5, 1))
sketch9.addConstraint(Sketcher.Constraint("Vertical", 0))
sketch9.addConstraint(Sketcher.Constraint("Horizontal", 1))
sketch9.addConstraint(Sketcher.Constraint("Vertical", 2))
sketch9.addConstraint(Sketcher.Constraint("Horizontal", 3))
sketch9.addConstraint(Sketcher.Constraint("Vertical", 5))
sketch9.addConstraint(Sketcher.Constraint("Horizontal", 6))
sketch9.addConstraint(Sketcher.Constraint("Vertical", 7))
sketch9.addConstraint(Sketcher.Constraint("Horizontal", 8))
sketch9.addConstraint(Sketcher.Constraint("Equal", 4, 9))
sketch9.addConstraint(Sketcher.Constraint("Horizontal", 4, 3, 9, 3))
sketch9.addConstraint(Sketcher.Constraint("Horizontal", 1, 2, 5, 2))
sketch9.addConstraint(Sketcher.Constraint("Horizontal", 3, 2, 7, 2))
sketch9.addConstraint(Sketcher.Constraint("Equal", 3, 6))
sketch9.addConstraint(Sketcher.Constraint("Equal", 8, 0))
sketch9.addConstraint(Sketcher.Constraint("DistanceX", 1, 2, 1, 1, Q("0.5 in")))
sketch9.addConstraint(Sketcher.Constraint("Diameter", 4, 4.2))
sketch9.addConstraint(Sketcher.Constraint("DistanceX", 4, 3, 0, 2, Q("0.25 in")))
sketch9.addConstraint(Sketcher.Constraint("DistanceY", 0, 2, 4, 3, Q("0.25 in")))
sketch9.addConstraint(Sketcher.Constraint("DistanceX", 9, 3, 5, 2, Q("0.25 in")))
sketch9.addConstraint(Sketcher.Constraint("DistanceX", -1, 1, 4, 3, 97.759998))
sketch9.addConstraint(Sketcher.Constraint("DistanceY", -1, 1, 4, 3, 69.46))
sketch9.addConstraint(Sketcher.Constraint("DistanceX", 9, 3, -1, 1, 2.56))
pad4 = body.newObject("PartDesign::Pad", "Pad003")
pad4.Profile = sketch9
pad4.Length = Q("0.125 in")
doc.recompute()

fillet = body.newObject("PartDesign::Fillet", "Fillet")
fillet.Base = (pad4, edges_at(pad4, [
    (17.76, 5.69, 39.37),
    (5.06, -7.01, 39.37),
    (17.76, -7.01, 39.37),
    (77.44, 5.69, 39.37),
    (90.14, -7.01, 39.37),
    (77.44, -7.01, 39.37),
    (91.41, 63.11, 4.128),
    (104.11, 63.11, 4.128),
    (104.11, 75.81, 4.128),
    (3.79, 75.81, 25.718),
    (3.79, 63.11, 4.128),
    (-8.91, 75.81, 4.128),
    (-8.91, 63.11, 4.128),
    (91.41, 75.81, 25.718),
    (91.41, 5.69, 41.91),
    (3.79, 5.69, 41.91),
]))
fillet.Radius = 3

doc.recompute()
